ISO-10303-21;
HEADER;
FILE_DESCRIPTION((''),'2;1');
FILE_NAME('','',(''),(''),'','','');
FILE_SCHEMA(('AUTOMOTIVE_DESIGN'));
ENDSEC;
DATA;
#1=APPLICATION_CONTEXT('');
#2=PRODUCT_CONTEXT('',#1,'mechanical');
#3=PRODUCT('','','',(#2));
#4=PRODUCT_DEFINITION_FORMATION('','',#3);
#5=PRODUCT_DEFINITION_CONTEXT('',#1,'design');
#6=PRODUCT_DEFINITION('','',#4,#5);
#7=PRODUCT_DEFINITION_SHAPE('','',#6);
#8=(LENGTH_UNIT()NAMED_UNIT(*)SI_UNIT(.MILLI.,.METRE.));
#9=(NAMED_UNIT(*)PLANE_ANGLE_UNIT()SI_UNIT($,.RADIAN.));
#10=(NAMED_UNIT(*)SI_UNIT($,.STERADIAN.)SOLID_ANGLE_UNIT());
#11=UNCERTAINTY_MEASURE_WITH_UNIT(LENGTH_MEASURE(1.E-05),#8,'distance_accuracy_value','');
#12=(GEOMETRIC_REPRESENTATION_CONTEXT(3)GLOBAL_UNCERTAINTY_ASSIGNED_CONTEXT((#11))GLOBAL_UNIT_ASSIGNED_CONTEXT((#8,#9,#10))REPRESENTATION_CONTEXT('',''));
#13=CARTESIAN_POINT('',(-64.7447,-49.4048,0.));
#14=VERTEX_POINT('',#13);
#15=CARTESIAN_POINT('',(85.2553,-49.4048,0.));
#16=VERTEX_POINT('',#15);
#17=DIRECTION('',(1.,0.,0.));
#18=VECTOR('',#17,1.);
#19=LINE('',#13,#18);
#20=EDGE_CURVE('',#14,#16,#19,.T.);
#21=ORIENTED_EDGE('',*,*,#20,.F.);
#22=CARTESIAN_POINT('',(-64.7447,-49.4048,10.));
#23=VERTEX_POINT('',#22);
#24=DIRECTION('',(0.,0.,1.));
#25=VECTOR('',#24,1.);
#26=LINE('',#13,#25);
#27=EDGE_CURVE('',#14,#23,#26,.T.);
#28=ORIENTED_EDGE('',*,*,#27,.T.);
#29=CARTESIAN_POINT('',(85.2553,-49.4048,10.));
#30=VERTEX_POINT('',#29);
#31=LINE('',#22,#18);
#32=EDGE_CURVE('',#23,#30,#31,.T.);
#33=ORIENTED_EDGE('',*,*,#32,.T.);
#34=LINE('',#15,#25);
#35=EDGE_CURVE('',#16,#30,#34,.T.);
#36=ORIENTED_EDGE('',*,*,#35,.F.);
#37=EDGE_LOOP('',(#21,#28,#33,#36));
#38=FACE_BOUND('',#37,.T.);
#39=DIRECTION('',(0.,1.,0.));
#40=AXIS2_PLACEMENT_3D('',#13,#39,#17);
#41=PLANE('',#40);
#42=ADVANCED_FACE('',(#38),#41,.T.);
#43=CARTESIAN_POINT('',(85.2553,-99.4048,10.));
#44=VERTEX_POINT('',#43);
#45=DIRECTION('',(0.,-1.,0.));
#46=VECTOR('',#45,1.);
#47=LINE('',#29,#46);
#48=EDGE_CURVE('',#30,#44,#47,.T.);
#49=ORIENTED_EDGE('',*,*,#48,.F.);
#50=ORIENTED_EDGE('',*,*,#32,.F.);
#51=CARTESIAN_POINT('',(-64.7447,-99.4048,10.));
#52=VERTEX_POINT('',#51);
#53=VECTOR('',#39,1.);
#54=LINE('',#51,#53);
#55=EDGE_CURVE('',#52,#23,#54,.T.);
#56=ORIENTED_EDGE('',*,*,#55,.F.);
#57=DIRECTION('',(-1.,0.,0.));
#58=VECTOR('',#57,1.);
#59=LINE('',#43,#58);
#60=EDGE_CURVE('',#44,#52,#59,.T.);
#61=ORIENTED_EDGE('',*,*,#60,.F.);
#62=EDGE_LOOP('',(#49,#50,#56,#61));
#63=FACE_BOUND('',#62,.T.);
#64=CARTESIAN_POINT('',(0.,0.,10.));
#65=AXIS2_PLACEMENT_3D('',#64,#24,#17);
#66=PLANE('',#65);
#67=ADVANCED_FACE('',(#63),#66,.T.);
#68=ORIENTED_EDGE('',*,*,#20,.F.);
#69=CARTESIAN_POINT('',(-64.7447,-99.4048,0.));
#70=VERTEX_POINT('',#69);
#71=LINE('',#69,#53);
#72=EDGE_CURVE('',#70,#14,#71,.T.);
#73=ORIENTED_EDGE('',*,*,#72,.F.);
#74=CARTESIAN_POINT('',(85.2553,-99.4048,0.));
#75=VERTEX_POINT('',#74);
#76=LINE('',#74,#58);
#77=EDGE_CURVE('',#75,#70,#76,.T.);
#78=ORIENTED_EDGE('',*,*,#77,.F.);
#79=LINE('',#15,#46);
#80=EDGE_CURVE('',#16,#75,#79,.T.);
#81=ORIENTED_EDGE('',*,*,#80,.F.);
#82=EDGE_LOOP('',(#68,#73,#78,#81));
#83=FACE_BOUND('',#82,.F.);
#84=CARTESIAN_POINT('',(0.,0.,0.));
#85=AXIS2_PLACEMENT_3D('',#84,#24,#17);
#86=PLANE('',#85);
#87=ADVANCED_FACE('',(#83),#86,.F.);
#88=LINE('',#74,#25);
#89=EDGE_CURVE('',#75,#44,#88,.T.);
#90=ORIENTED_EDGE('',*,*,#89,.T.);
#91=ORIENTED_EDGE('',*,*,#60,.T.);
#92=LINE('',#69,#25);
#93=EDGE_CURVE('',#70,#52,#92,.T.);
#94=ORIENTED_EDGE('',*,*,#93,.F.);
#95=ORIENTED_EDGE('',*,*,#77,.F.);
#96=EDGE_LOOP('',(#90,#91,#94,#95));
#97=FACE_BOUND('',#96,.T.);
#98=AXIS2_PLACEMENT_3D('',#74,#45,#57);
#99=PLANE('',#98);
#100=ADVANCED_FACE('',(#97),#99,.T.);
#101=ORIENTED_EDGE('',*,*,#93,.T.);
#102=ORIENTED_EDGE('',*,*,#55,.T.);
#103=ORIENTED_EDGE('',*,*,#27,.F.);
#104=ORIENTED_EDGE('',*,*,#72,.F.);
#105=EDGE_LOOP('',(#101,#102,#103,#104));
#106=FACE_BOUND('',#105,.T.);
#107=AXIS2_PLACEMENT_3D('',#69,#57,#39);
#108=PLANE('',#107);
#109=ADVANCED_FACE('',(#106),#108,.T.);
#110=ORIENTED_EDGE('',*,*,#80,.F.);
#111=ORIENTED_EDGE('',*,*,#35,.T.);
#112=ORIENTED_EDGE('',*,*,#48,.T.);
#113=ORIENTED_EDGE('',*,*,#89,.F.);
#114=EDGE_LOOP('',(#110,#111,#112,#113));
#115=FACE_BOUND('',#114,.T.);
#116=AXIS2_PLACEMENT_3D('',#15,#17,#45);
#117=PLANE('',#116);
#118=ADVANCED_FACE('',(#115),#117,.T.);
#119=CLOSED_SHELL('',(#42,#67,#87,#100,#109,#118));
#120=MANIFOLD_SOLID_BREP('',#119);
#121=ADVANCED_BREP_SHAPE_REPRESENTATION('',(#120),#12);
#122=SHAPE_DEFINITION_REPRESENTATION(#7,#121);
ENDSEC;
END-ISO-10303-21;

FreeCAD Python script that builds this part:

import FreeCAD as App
import Part
import Sketcher

V = App.Vector


def add_polygon(sketch, points):
    """Adds a closed chain of lines whose ends are joined by coincident constraints."""
    first, n = sketch.GeometryCount, len(points)
    for a, b in zip(points, points[1:] + points[:1]):
        sketch.addGeometry(Part.LineSegment(App.Vector(*a, 0), App.Vector(*b, 0)), False)
    for i in range(n):
        sketch.addConstraint(Sketcher.Constraint("Coincident", first + i, 2, first + (i + 1) % n, 1))

doc = App.newDocument("Part")
body = doc.addObject("PartDesign::Body", "Body")

sketch1 = doc.addObject("Sketcher::SketchObject", "Sketch")
body.addObject(sketch1)
sketch1.AttachmentSupport = (doc.XY_Plane, [""])
sketch1.MapMode = "FlatFace"
add_polygon(sketch1, [(85.2553, -49.4048), (-64.7447, -49.4048), (-64.7447, -99.4048), (85.2553, -99.4048)])
sketch1.addConstraint([
    Sketcher.Constraint("Horizontal", 0),
    Sketcher.Constraint("Vertical", 1),
    Sketcher.Constraint("Horizontal", 2),
    Sketcher.Constraint("Vertical", 3),
    Sketcher.Constraint("DistanceX", 0, 2, 0, 1, 150.0),
    Sketcher.Constraint("DistanceY", 1, 2, 1, 1, 50.0),
    Sketcher.Constraint("DistanceX", 0, 2, -1, 1, 64.7447),
    Sketcher.Constraint("DistanceY", 0, 2, -1, 1, 49.4048),
])
pad1 = doc.addObject("PartDesign::Pad", "Pad")
body.addObject(pad1)
pad1.Profile = sketch1
pad1.Length = 10

doc.recompute()
